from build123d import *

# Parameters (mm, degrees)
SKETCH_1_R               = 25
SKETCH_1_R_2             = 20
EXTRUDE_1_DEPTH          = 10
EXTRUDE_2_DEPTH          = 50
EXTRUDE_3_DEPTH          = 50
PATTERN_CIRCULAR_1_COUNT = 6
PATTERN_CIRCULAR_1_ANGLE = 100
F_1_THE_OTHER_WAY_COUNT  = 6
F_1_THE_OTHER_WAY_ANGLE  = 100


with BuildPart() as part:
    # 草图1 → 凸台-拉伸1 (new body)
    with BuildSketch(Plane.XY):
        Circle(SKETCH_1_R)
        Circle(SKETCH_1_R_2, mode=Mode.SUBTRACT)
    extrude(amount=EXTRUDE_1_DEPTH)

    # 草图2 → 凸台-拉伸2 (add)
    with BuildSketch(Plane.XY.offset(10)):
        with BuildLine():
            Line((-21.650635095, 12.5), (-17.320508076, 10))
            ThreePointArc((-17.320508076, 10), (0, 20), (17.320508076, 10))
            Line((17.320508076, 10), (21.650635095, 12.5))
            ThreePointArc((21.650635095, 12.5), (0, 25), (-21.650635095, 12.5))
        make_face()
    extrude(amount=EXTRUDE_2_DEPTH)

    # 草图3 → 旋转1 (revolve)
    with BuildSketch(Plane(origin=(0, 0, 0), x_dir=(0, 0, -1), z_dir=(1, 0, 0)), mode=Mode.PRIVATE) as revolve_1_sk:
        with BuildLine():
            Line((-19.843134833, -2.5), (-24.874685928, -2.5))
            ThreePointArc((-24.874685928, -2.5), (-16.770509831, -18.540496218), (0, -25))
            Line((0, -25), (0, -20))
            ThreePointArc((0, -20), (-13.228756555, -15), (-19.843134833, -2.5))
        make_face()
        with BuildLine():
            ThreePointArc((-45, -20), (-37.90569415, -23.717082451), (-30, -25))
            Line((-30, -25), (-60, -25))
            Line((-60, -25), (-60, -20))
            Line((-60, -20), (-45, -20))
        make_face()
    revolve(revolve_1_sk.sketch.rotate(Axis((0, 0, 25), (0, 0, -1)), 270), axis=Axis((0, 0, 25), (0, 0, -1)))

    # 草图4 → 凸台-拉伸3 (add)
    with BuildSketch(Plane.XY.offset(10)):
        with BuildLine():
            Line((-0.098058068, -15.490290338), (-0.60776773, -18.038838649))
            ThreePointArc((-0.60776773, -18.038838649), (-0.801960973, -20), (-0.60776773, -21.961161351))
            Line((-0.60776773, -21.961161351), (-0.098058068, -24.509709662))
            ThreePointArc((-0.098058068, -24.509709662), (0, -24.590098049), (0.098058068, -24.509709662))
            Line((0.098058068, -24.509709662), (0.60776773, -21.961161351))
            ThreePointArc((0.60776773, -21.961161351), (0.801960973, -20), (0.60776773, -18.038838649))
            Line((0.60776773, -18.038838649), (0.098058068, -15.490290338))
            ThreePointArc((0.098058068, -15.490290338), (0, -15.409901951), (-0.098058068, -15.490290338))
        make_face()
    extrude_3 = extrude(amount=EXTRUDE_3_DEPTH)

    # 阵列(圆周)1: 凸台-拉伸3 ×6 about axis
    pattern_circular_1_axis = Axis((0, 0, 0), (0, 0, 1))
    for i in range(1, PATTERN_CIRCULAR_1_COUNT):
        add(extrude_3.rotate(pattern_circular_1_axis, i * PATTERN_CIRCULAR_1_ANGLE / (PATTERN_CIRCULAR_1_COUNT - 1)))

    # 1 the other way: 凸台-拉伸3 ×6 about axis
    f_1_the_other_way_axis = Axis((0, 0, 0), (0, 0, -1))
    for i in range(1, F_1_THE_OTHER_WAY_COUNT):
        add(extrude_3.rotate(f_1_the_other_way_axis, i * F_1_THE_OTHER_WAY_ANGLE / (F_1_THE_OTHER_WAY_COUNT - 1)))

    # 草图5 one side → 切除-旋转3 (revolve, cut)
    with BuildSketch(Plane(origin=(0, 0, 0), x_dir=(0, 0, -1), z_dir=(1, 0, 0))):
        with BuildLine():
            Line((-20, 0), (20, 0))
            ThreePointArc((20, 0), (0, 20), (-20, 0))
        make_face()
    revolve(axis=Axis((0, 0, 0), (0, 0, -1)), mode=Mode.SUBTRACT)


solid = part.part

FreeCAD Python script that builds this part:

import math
import FreeCAD as App
import Part
import Sketcher
Q = App.Units.Quantity

doc = App.newDocument("Part")
body = doc.addObject("PartDesign::Body", "Body")

sketch1 = body.newObject("Sketcher::SketchObject", "Sketch")
sketch1.AttachmentSupport = (doc.getObject("XY_Plane"), [""])
sketch1.MapMode = "FlatFace"
sketch1.addGeometry([
    Part.Circle(App.Vector(0, 0, 0), App.Vector(0, 0, 1), 25),
    Part.Circle(App.Vector(0, 0, 0), App.Vector(0, 0, 1), 20),
], False)
sketch1.addConstraint([
    Sketcher.Constraint("Coincident", 0, 3, -1, 1),
    Sketcher.Constraint("Coincident", 1, 3, -1, 1),
    Sketcher.Constraint("Diameter", 0, 50.0),
    Sketcher.Constraint("Diameter", 1, 40.0),
])
pad1 = body.newObject("PartDesign::Pad", "Pad")
pad1.Profile = sketch1
pad1.Length = 10

sketch2 = body.newObject("Sketcher::SketchObject", "Sketch001")
sketch2.AttachmentSupport = (doc.getObject("XY_Plane"), [""])
sketch2.MapMode = "FlatFace"
sketch2.AttachmentOffset = App.Placement(App.Vector(0, 0, 10), App.Rotation())
sketch2.addGeometry([
    Part.LineSegment(App.Vector(-22, 12, 0), App.Vector(-17, 10, 0)),
    Part.ArcOfCircle(Part.Circle(App.Vector(0, 0, 0), App.Vector(0, 0, 1), 20), math.radians(30), math.radians(150)),
    Part.LineSegment(App.Vector(17, 10, 0), App.Vector(22, 12, 0)),
    Part.ArcOfCircle(Part.Circle(App.Vector(0, 0, 0), App.Vector(0, 0, 1), 25), math.radians(30), math.radians(150)),
], False)
sketch2.addConstraint([
    Sketcher.Constraint("Coincident", 0, 2, 1, 2),
    Sketcher.Constraint("Coincident", 1, 1, 2, 1),
    Sketcher.Constraint("Coincident", 2, 2, 3, 1),
    Sketcher.Constraint("Coincident", 3, 2, 0, 1),
    Sketcher.Constraint("Coincident", 1, 3, -1, 1),
    Sketcher.Constraint("Coincident", 3, 3, -1, 1),
    Sketcher.Constraint("Horizontal", 0, 2, 1, 1),
    Sketcher.Constraint("Horizontal", 2, 2, 3, 2),
    Sketcher.Constraint("Radius", 1, 20.0),
    Sketcher.Constraint("Radius", 3, 25.0),
    Sketcher.Constraint("Angle", 0, Q("-30 deg")),
    Sketcher.Constraint("DistanceY", -1, 1, 0, 2, 10.0),
])
pad2 = body.newObject("PartDesign::Pad", "Pad001")
pad2.Profile = sketch2
pad2.Length = 50

sketch3 = body.newObject("Sketcher::SketchObject", "Sketch002")
sketch3.AttachmentSupport = (doc.getObject("YZ_Plane"), [""])
sketch3.MapMode = "FlatFace"
sketch3.addGeometry([
    Part.LineSegment(App.Vector(-2, 20, 0), App.Vector(-2, 25, 0)),
    Part.ArcOfCircle(Part.Circle(App.Vector(0, 0, 0), App.Vector(0, 0, 1), 25), math.radians(96), math.radians(180)),
    Part.LineSegment(App.Vector(-25, 0, 0), App.Vector(-20, 0, 0)),
    Part.ArcOfCircle(Part.Circle(App.Vector(0, 0, 0), App.Vector(0, 0, 1), 20), math.radians(97), math.radians(180)),
    Part.ArcOfCircle(Part.Circle(App.Vector(0, 30, 0), App.Vector(0, 0, 1), 25), math.radians(143), math.radians(180)),
    Part.LineSegment(App.Vector(-20, 45, 0), App.Vector(-20, 60, 0)),
    Part.LineSegment(App.Vector(-20, 60, 0), App.Vector(-25, 60, 0)),
    Part.LineSegment(App.Vector(-25, 60, 0), App.Vector(-25, 30, 0)),
], False)
sketch3.addConstraint([
    Sketcher.Constraint("Coincident", 0, 2, 1, 1),
    Sketcher.Constraint("Coincident", 1, 2, 2, 1),
    Sketcher.Constraint("Coincident", 2, 2, 3, 2),
    Sketcher.Constraint("Coincident", 3, 1, 0, 1),
    Sketcher.Constraint("Coincident", 4, 1, 5, 1),
    Sketcher.Constraint("Coincident", 5, 2, 6, 1),
    Sketcher.Constraint("Coincident", 6, 2, 7, 1),
    Sketcher.Constraint("Tangent", 7, 2, 4, 2),
    Sketcher.Constraint("Vertical", 0),
    Sketcher.Constraint("Horizontal", 2),
    Sketcher.Constraint("Vertical", 5),
    Sketcher.Constraint("Horizontal", 6),
    Sketcher.Constraint("Vertical", 7),
    Sketcher.Constraint("Coincident", 1, 3, -1, 1),
    Sketcher.Constraint("Coincident", 3, 3, -1, 1),
    Sketcher.Constraint("Equal", 1, 4),
    Sketcher.Constraint("PointOnObject", 4, 3, -2),
    Sketcher.Constraint("PointOnObject", 1, 2, -1),
    Sketcher.Constraint("Vertical", 2, 2, 4, 1),
    Sketcher.Constraint("Radius", 1, 25.0),
    Sketcher.Constraint("Radius", 3, 20.0),
    Sketcher.Constraint("DistanceY", 5, 1, 5, 2, 15.0),
    Sketcher.Constraint("DistanceY", -1, 1, 4, 3, 30.0),
    Sketcher.Constraint("DistanceX", 0, 2, -1, 1, 2.5),
])
revolution = body.newObject("PartDesign::Revolution", "Revolution")
revolution.Profile = sketch3
revolution.ReferenceAxis = (sketch3, ["V_Axis"])
revolution.Angle = 360

sketch4 = body.newObject("Sketcher::SketchObject", "Sketch003")
sketch4.AttachmentSupport = (doc.getObject("XY_Plane"), [""])
sketch4.MapMode = "FlatFace"
sketch4.AttachmentOffset = App.Placement(App.Vector(0, 0, 10), App.Rotation())
sketch4.addGeometry([
    Part.LineSegment(App.Vector(-0.1, -15.49, 0), App.Vector(-0.61, -18.04, 0)),
    Part.ArcOfCircle(Part.Circle(App.Vector(9.2, -20, 0), App.Vector(0, 0, 1), 10), math.radians(169), math.radians(191)),
    Part.LineSegment(App.Vector(-0.61, -21.96, 0), App.Vector(-0.1, -24.51, 0)),
    Part.ArcOfCircle(Part.Circle(App.Vector(0, -24.49, 0), App.Vector(0, 0, 1), 0.1), math.radians(-169), math.radians(-11)),
    Part.LineSegment(App.Vector(0.1, -24.51, 0), App.Vector(0.61, -21.96, 0)),
    Part.ArcOfCircle(Part.Circle(App.Vector(-9.2, -20, 0), App.Vector(0, 0, 1), 10), math.radians(-11), math.radians(11)),
    Part.LineSegment(App.Vector(0.61, -18.04, 0), App.Vector(0.1, -15.49, 0)),
    Part.ArcOfCircle(Part.Circle(App.Vector(0, -15.51, 0), App.Vector(0, 0, 1), 0.1), math.radians(11), math.radians(169)),
], False)
sketch4.addConstraint([
    Sketcher.Constraint("Tangent", 0, 2, 1, 1),
    Sketcher.Constraint("Tangent", 1, 2, 2, 1),
    Sketcher.Constraint("Tangent", 2, 2, 3, 1),
    Sketcher.Constraint("Tangent", 3, 2, 4, 1),
    Sketcher.Constraint("Tangent", 4, 2, 5, 1),
    Sketcher.Constraint("Tangent", 5, 2, 6, 1),
    Sketcher.Constraint("Tangent", 6, 2, 7, 1),
    Sketcher.Constraint("Tangent", 7, 2, 0, 1),
    Sketcher.Constraint("Equal", 1, 5),
    Sketcher.Constraint("Equal", 3, 7),
    Sketcher.Constraint("Symmetric", 1, 3, 5, 3, -2),
    Sketcher.Constraint("PointOnObject", 3, 3, -2),
    Sketcher.Constraint("PointOnObject", 7, 3, -2),
    Sketcher.Constraint("Parallel", 0, 4),
    Sketcher.Constraint("Radius", 1, 10.0),
    Sketcher.Constraint("Radius", 3, 0.1),
    Sketcher.Constraint("DistanceY", 1, 3, -1, 1, 20.0),
    Sketcher.Constraint("DistanceY", 3, 3, -1, 1, 24.490098),
    Sketcher.Constraint("Distance", 0, 2.59902),
])
pad3 = body.newObject("PartDesign::Pad", "Pad002")
pad3.Profile = sketch4
pad3.Length = 50
doc.recompute()

polarpattern = body.newObject("PartDesign::PolarPattern", "PolarPattern")
polarpattern.Originals = [pad3]
polarpattern.Axis = (doc.getObject("Z_Axis"), [""])
polarpattern.Angle = 100
polarpattern.Occurrences = 6
body.Tip = polarpattern
doc.recompute()

polarpattern2 = body.newObject("PartDesign::PolarPattern", "PolarPattern001")
polarpattern2.Originals = [pad3]
polarpattern2.Axis = (doc.getObject("Z_Axis"), [""])
polarpattern2.Angle = 100
polarpattern2.Occurrences = 6
polarpattern2.Reversed = True
body.Tip = polarpattern2

sketch5 = body.newObject("Sketcher::SketchObject", "Sketch004")
sketch5.AttachmentSupport = (doc.getObject("YZ_Plane"), [""])
sketch5.MapMode = "FlatFace"
sketch5.addGeometry([
    Part.LineSegment(App.Vector(0, 20, 0), App.Vector(0, -20, 0)),
    Part.ArcOfCircle(Part.Circle(App.Vector(0, 0, 0), App.Vector(0, 0, 1), 20), math.radians(-90), math.radians(90)),
], False)
sketch5.addConstraint([
    Sketcher.Constraint("Coincident", 0, 1, 1, 2),
    Sketcher.Constraint("Coincident", 1, 1, 0, 2),
    Sketcher.Constraint("Vertical", 0),
    Sketcher.Constraint("Coincident", 1, 3, -1, 1),
    Sketcher.Constraint("PointOnObject", 0, 1, -2),
    Sketcher.Constraint("Radius", 1, 20.0),
])
groove = body.newObject("PartDesign::Groove", "Groove")
groove.Profile = sketch5
groove.ReferenceAxis = (sketch5, ["V_Axis"])
groove.Angle = 360

doc.recompute()
